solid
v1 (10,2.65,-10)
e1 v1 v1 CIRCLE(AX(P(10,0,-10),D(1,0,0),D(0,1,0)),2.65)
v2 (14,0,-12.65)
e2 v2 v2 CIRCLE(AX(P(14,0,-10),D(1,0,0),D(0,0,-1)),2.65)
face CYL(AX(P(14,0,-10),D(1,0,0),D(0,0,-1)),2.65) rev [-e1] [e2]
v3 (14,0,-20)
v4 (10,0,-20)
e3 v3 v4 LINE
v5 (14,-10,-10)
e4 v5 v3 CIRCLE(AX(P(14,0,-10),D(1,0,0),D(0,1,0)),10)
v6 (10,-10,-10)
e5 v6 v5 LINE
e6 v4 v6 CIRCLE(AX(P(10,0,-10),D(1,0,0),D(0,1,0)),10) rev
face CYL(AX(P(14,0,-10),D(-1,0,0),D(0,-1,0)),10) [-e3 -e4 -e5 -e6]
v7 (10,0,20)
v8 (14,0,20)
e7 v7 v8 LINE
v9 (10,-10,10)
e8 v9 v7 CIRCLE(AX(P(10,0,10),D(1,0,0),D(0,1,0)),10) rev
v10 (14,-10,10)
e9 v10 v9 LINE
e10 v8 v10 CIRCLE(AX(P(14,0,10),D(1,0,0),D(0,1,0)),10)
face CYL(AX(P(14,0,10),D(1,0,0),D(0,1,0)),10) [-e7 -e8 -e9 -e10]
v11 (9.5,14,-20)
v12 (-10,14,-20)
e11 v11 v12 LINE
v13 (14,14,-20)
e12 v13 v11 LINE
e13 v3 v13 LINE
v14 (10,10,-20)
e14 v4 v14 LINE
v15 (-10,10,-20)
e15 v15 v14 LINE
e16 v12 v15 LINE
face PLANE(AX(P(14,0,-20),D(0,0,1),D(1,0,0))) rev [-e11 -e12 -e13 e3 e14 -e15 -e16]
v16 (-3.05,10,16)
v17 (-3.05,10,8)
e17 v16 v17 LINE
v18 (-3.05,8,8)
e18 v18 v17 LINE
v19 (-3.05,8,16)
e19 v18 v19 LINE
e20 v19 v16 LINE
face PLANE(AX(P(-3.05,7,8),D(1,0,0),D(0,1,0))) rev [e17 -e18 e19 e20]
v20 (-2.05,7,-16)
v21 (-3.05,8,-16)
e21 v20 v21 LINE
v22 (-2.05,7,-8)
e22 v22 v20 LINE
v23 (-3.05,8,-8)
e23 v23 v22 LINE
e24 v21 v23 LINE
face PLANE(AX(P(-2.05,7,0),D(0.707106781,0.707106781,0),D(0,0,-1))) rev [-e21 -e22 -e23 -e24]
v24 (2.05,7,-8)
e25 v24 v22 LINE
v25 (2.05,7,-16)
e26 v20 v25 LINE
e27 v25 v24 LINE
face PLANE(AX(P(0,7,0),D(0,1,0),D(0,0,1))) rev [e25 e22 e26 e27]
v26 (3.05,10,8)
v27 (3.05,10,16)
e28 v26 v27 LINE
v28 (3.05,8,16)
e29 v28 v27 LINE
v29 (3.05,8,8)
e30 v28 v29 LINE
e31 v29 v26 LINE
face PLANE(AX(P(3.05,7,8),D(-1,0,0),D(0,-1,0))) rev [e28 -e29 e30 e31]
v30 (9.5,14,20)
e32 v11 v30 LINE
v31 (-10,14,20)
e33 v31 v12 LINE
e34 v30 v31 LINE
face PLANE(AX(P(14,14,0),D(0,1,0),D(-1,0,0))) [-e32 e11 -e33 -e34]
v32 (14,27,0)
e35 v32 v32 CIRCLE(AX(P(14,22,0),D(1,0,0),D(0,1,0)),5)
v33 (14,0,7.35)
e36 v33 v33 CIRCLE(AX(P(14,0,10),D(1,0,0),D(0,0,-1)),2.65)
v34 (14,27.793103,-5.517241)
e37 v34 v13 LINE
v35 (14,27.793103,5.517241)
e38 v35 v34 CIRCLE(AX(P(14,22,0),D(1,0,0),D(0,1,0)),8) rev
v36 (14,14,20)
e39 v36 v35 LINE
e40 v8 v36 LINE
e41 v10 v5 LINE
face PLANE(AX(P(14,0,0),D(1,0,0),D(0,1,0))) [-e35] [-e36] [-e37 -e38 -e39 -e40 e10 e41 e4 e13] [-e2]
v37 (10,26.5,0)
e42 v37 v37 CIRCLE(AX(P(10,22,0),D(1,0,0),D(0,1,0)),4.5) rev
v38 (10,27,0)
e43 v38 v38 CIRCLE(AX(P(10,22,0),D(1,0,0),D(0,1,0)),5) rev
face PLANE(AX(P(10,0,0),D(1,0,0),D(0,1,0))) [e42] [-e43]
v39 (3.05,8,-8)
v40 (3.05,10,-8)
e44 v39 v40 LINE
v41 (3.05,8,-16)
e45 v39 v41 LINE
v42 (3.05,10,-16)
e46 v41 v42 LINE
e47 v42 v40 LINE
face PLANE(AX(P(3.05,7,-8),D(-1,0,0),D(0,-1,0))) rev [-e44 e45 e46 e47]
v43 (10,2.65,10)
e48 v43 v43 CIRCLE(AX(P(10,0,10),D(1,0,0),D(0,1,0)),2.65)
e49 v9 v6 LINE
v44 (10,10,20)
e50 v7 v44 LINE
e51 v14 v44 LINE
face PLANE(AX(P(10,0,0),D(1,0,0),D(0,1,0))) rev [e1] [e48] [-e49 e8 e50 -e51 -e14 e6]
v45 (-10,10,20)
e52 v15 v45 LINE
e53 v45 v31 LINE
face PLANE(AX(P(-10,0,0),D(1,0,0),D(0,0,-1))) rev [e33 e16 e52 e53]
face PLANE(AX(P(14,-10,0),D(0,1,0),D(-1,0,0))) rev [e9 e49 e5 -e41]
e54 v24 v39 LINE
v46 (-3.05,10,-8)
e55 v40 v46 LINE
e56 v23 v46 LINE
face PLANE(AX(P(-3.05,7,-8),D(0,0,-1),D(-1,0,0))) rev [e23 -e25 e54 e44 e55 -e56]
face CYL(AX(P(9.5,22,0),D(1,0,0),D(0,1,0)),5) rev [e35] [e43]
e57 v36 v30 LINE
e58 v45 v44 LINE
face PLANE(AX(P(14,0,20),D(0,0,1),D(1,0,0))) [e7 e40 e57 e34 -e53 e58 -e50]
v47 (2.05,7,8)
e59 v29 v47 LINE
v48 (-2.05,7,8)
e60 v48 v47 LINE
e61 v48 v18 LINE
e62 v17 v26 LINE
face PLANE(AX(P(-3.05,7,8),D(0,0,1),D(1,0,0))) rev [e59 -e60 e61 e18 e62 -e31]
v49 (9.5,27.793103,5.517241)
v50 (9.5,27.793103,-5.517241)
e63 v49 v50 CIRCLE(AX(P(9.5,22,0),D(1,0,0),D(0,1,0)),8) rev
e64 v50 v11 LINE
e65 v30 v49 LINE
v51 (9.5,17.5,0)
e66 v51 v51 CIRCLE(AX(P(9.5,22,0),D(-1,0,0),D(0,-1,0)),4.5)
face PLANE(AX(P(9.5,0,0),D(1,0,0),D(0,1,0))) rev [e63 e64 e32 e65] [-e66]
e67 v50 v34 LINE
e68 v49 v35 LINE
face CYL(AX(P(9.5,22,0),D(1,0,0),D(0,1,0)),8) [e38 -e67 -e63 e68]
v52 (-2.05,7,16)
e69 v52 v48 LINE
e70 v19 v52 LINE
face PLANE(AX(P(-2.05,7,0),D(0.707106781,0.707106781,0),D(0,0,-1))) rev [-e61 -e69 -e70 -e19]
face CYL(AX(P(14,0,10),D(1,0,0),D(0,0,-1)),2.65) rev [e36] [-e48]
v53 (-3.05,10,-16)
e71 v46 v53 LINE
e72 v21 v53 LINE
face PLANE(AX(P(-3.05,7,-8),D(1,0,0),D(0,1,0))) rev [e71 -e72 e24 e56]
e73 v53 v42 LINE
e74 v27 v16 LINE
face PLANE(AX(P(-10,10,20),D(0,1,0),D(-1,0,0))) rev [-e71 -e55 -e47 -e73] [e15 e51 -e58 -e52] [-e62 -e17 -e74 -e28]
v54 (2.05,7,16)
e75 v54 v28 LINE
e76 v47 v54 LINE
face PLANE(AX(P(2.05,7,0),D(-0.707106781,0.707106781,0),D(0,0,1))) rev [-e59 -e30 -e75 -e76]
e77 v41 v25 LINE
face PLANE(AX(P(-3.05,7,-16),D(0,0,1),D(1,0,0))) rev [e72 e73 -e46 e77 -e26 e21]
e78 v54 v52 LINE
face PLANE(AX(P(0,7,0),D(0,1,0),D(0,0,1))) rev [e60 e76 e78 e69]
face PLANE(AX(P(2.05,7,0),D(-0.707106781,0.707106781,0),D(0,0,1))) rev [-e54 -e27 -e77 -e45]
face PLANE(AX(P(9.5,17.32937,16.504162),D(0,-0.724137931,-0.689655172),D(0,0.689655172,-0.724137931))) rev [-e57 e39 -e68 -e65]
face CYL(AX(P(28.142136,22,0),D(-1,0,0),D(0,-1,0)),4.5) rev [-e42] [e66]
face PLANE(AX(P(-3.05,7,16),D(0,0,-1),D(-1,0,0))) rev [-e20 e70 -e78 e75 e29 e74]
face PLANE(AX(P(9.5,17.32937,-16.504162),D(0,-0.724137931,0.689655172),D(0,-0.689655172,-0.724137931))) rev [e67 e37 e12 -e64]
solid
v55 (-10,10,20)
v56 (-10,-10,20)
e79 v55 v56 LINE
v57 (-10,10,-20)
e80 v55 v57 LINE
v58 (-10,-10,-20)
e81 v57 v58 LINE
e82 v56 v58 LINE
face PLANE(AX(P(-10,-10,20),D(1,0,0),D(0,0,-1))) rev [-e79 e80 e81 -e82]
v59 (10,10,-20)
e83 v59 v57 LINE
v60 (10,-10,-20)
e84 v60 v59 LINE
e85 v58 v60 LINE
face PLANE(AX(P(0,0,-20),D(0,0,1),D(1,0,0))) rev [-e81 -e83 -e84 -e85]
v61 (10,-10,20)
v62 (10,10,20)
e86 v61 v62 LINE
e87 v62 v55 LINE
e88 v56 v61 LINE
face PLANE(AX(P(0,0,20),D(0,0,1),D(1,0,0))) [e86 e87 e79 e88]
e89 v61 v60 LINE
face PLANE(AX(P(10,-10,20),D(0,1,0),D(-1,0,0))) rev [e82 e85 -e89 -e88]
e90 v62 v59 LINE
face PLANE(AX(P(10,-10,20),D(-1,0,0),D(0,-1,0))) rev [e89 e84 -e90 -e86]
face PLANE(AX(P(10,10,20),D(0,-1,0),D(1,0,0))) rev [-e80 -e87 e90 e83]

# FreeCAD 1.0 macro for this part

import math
import FreeCAD as App
import Part
import Sketcher
from FreeCAD import Vector
Q = App.Units.Quantity


def edges_at(feature, points):
    """Names of the edges that pass closest to the given points."""
    edges = feature.Shape.Edges
    near = lambda p: min(range(len(edges)), key=lambda i: edges[i].distToShape(Part.Vertex(*p))[0])
    return sorted({f"Edge{near(p) + 1}" for p in points})

doc = App.newDocument("Part")
params = doc.addObject("Spreadsheet::Sheet", "Params")
for row, (alias, value) in enumerate([
    ("sketch1_width", "20 mm"),
    ("pad1_length", "40 mm"),
    ("sketch2_width", "24 mm"),
    ("sketch2_height", "40 mm"),
    ("pad2_length", "4 mm"),
    ("sketch3_width", "24 mm"),
    ("sketch3_height", "2.65 mm"),
    ("groove_angle", "360 deg"),
    ("linearpattern_pitch", "20 mm"),
    ("sketch4_width", "4 mm"),
    ("sketch4_height", "40 mm"),
    ("pad3_length", "20 mm"),
    ("sketch5_height", "8 mm"),
    ("sketch5_width", "6.1 mm"),
    ("pad4_length", "3 mm"),
    ("chamfer_size", "1 mm"),
    ("sketch6_diameter", "10 mm"),
    ("sketch6_radius", "8 mm"),
    ("sketch6_height", "40 mm"),
    ("sketch6_length", "20 mm"),
    ("pad5_length", "4.5 mm"),
    ("sketch7_diameter", "10 mm"),
    ("sketch7_diameter2", "9 mm"),
    ("pad6_length", "0.5 mm"),
    ("fillet_radius", "10 mm"),
], start=1):
    params.set(f"A{row}", alias)
    params.set(f"B{row}", "=" + value)
    params.setAlias(f"B{row}", alias)

body = doc.addObject("PartDesign::Body", "Body")

# Sketch on XY plane
sketch1 = body.newObject("Sketcher::SketchObject", "Sketch")
sketch1.AttachmentSupport = (doc.getObject("XY_Plane"), [""])
sketch1.MapMode = "FlatFace"
sketch1.addGeometry(Part.LineSegment(Vector(-10, 10, 0), Vector(-10, -10, 0)), False)
sketch1.addGeometry(Part.LineSegment(Vector(-10, -10, 0), Vector(10, -10, 0)), False)
sketch1.addGeometry(Part.LineSegment(Vector(10, -10, 0), Vector(10, 10, 0)), False)
sketch1.addGeometry(Part.LineSegment(Vector(10, 10, 0), Vector(-10, 10, 0)), False)
sketch1.addConstraint(Sketcher.Constraint("Coincident", 0, 2, 1, 1))
sketch1.addConstraint(Sketcher.Constraint("Coincident", 1, 2, 2, 1))
sketch1.addConstraint(Sketcher.Constraint("Coincident", 2, 2, 3, 1))
sketch1.addConstraint(Sketcher.Constraint("Coincident", 3, 2, 0, 1))
sketch1.addConstraint(Sketcher.Constraint("Vertical", 0))
sketch1.addConstraint(Sketcher.Constraint("Horizontal", 1))
sketch1.addConstraint(Sketcher.Constraint("Vertical", 2))
sketch1.addConstraint(Sketcher.Constraint("Horizontal", 3))
sketch1.addConstraint(Sketcher.Constraint("Symmetric", 0, 2, 2, 2, -1, 1))
sketch1.addConstraint(Sketcher.Constraint("Equal", 3, 0))
sketch1.addConstraint(Sketcher.Constraint("DistanceX", 1, 1, 1, 2, Q("20 mm")))
sketch1.setExpression("Constraints[10]", "Params.sketch1_width")
pad1 = body.newObject("PartDesign::Pad", "Pad")
pad1.Profile = sketch1
pad1.setExpression("Length", "Params.pad1_length")
pad1.Midplane = True
body2 = doc.addObject("PartDesign::Body", "Body001")

# Sketch on YZ plane
sketch2 = body2.newObject("Sketcher::SketchObject", "Sketch001")
sketch2.AttachmentSupport = (doc.getObject("YZ_Plane001"), [""])
sketch2.MapMode = "FlatFace"
sketch2.AttachmentOffset = App.Placement(Vector(0, 0, 10), App.Rotation())
sketch2.addGeometry(Part.LineSegment(Vector(14, 20, 0), Vector(-10, 20, 0)), False)
sketch2.addGeometry(Part.LineSegment(Vector(-10, 20, 0), Vector(-10, -20, 0)), False)
sketch2.addGeometry(Part.LineSegment(Vector(-10, -20, 0), Vector(14, -20, 0)), False)
sketch2.addGeometry(Part.LineSegment(Vector(14, -20, 0), Vector(14, 20, 0)), False)
sketch2.addConstraint(Sketcher.Constraint("Coincident", 0, 2, 1, 1))
sketch2.addConstraint(Sketcher.Constraint("Coincident", 1, 2, 2, 1))
sketch2.addConstraint(Sketcher.Constraint("Coincident", 2, 2, 3, 1))
sketch2.addConstraint(Sketcher.Constraint("Coincident", 3, 2, 0, 1))
sketch2.addConstraint(Sketcher.Constraint("Horizontal", 0))
sketch2.addConstraint(Sketcher.Constraint("Vertical", 1))
sketch2.addConstraint(Sketcher.Constraint("Horizontal", 2))
sketch2.addConstraint(Sketcher.Constraint("Vertical", 3))
sketch2.addConstraint(Sketcher.Constraint("DistanceX", 0, 2, 0, 1, Q("24 mm")))
sketch2.addConstraint(Sketcher.Constraint("DistanceY", 1, 2, 1, 1, Q("40 mm")))
sketch2.addConstraint(Sketcher.Constraint("DistanceX", 0, 2, -1, 1, Q("10 mm")))
sketch2.addConstraint(Sketcher.Constraint("DistanceY", -1, 1, 0, 2, Q("20 mm")))
sketch2.setExpression("Constraints[8]", "Params.sketch2_width")
sketch2.setExpression("Constraints[9]", "Params.sketch2_height")
pad2 = body2.newObject("PartDesign::Pad", "Pad001")
pad2.Profile = sketch2
pad2.setExpression("Length", "Params.pad2_length")

# Sketch on XZ plane
sketch3 = body2.newObject("Sketcher::SketchObject", "Sketch002")
sketch3.AttachmentSupport = (doc.getObject("XZ_Plane001"), [""])
sketch3.MapMode = "FlatFace"
sketch3.addGeometry(Part.LineSegment(Vector(-10, 10, 0), Vector(14, 10, 0)), False)
sketch3.addGeometry(Part.LineSegment(Vector(14, 10, 0), Vector(14, 7.35, 0)), False)
sketch3.addGeometry(Part.LineSegment(Vector(14, 7.35, 0), Vector(-10, 7.35, 0)), False)
sketch3.addGeometry(Part.LineSegment(Vector(-10, 7.35, 0), Vector(-10, 10, 0)), False)
sketch3.addGeometry(Part.LineSegment(Vector(14, 10, 0), Vector(-10, 10, 0)), True)  # axis
sketch3.addConstraint(Sketcher.Constraint("Coincident", 0, 2, 1, 1))
sketch3.addConstraint(Sketcher.Constraint("Coincident", 1, 2, 2, 1))
sketch3.addConstraint(Sketcher.Constraint("Coincident", 2, 2, 3, 1))
sketch3.addConstraint(Sketcher.Constraint("Coincident", 3, 2, 0, 1))
sketch3.addConstraint(Sketcher.Constraint("Horizontal", 0))
sketch3.addConstraint(Sketcher.Constraint("Vertical", 1))
sketch3.addConstraint(Sketcher.Constraint("Horizontal", 2))
sketch3.addConstraint(Sketcher.Constraint("Vertical", 3))
sketch3.addConstraint(Sketcher.Constraint("Horizontal", 4))
sketch3.addConstraint(Sketcher.Constraint("Coincident", 4, 1, 0, 2))
sketch3.addConstraint(Sketcher.Constraint("Vertical", 2, 2, 4, 2))
sketch3.addConstraint(Sketcher.Constraint("DistanceX", 0, 1, 0, 2, Q("24 mm")))
sketch3.addConstraint(Sketcher.Constraint("DistanceX", -1, 1, 0, 2, Q("14 mm")))
sketch3.addConstraint(Sketcher.Constraint("DistanceY", -1, 1, 0, 2, Q("10 mm")))
sketch3.addConstraint(Sketcher.Constraint("DistanceY", 1, 2, 1, 1, Q("2.65 mm")))
sketch3.setExpression("Constraints[11]", "Params.sketch3_width")
sketch3.setExpression("Constraints[14]", "Params.sketch3_height")
groove = body2.newObject("PartDesign::Groove", "Groove")
groove.Profile = sketch3
groove.ReferenceAxis = (sketch3, ["Axis0"])
groove.setExpression("Angle", "Params.groove_angle")
doc.recompute()

linearpattern = body2.newObject("PartDesign::LinearPattern", "LinearPattern")
linearpattern.Originals = [groove]
linearpattern.Direction = (doc.getObject("Z_Axis001"), [""])
linearpattern.Mode = "offset"
linearpattern.setExpression("Offset", "Params.linearpattern_pitch")
linearpattern.Occurrences = 2
linearpattern.Reversed = True
body2.Tip = linearpattern

# Sketch on YZ plane
sketch4 = body2.newObject("Sketcher::SketchObject", "Sketch003")
sketch4.AttachmentSupport = (doc.getObject("YZ_Plane001"), [""])
sketch4.MapMode = "FlatFace"
sketch4.AttachmentOffset = App.Placement(Vector(0, 0, 10), App.Rotation())
sketch4.addGeometry(Part.LineSegment(Vector(14, -20, 0), Vector(10, -20, 0)), False)
sketch4.addGeometry(Part.LineSegment(Vector(10, -20, 0), Vector(10, 20, 0)), False)
sketch4.addGeometry(Part.LineSegment(Vector(10, 20, 0), Vector(14, 20, 0)), False)
sketch4.addGeometry(Part.LineSegment(Vector(14, 20, 0), Vector(14, -20, 0)), False)
sketch4.addConstraint(Sketcher.Constraint("Coincident", 0, 2, 1, 1))
sketch4.addConstraint(Sketcher.Constraint("Coincident", 1, 2, 2, 1))
sketch4.addConstraint(Sketcher.Constraint("Coincident", 2, 2, 3, 1))
sketch4.addConstraint(Sketcher.Constraint("Coincident", 3, 2, 0, 1))
sketch4.addConstraint(Sketcher.Constraint("Horizontal", 0))
sketch4.addConstraint(Sketcher.Constraint("Vertical", 1))
sketch4.addConstraint(Sketcher.Constraint("Horizontal", 2))
sketch4.addConstraint(Sketcher.Constraint("Vertical", 3))
sketch4.addConstraint(Sketcher.Constraint("DistanceX", 0, 2, 0, 1, Q("4 mm")))
sketch4.addConstraint(Sketcher.Constraint("DistanceY", 1, 1, 1, 2, Q("40 mm")))
sketch4.addConstraint(Sketcher.Constraint("DistanceX", -1, 1, 0, 2, Q("10 mm")))
sketch4.addConstraint(Sketcher.Constraint("DistanceY", 0, 2, -1, 1, Q("20 mm")))
sketch4.setExpression("Constraints[8]", "Params.sketch4_width")
sketch4.setExpression("Constraints[9]", "Params.sketch4_height")
pad3 = body2.newObject("PartDesign::Pad", "Pad002")
pad3.Profile = sketch4
pad3.setExpression("Length", "Params.pad3_length")
pad3.Reversed = True

# Sketch on XZ plane
sketch5 = body2.newObject("Sketcher::SketchObject", "Sketch004")
sketch5.AttachmentSupport = (doc.getObject("XZ_Plane001"), [""])
sketch5.MapMode = "FlatFace"
sketch5.AttachmentOffset = App.Placement(Vector(0, 0, -10), App.Rotation())
sketch5.addGeometry(Part.LineSegment(Vector(-3.05, 16, 0), Vector(-3.05, 8, 0)), False)
sketch5.addGeometry(Part.LineSegment(Vector(-3.05, 8, 0), Vector(3.05, 8, 0)), False)
sketch5.addGeometry(Part.LineSegment(Vector(3.05, 8, 0), Vector(3.05, 16, 0)), False)
sketch5.addGeometry(Part.LineSegment(Vector(3.05, 16, 0), Vector(-3.05, 16, 0)), False)
sketch5.addGeometry(Part.LineSegment(Vector(-3.05, -8, 0), Vector(-3.05, -16, 0)), False)
sketch5.addGeometry(Part.LineSegment(Vector(-3.05, -16, 0), Vector(3.05, -16, 0)), False)
sketch5.addGeometry(Part.LineSegment(Vector(3.05, -16, 0), Vector(3.05, -8, 0)), False)
sketch5.addGeometry(Part.LineSegment(Vector(3.05, -8, 0), Vector(-3.05, -8, 0)), False)
sketch5.addConstraint(Sketcher.Constraint("Coincident", 0, 2, 1, 1))
sketch5.addConstraint(Sketcher.Constraint("Coincident", 1, 2, 2, 1))
sketch5.addConstraint(Sketcher.Constraint("Coincident", 2, 2, 3, 1))
sketch5.addConstraint(Sketcher.Constraint("Coincident", 3, 2, 0, 1))
sketch5.addConstraint(Sketcher.Constraint("Coincident", 4, 2, 5, 1))
sketch5.addConstraint(Sketcher.Constraint("Coincident", 5, 2, 6, 1))
sketch5.addConstraint(Sketcher.Constraint("Coincident", 6, 2, 7, 1))
sketch5.addConstraint(Sketcher.Constraint("Coincident", 7, 2, 4, 1))
sketch5.addConstraint(Sketcher.Constraint("Vertical", 0))
sketch5.addConstraint(Sketcher.Constraint("Horizontal", 1))
sketch5.addConstraint(Sketcher.Constraint("Vertical", 2))
sketch5.addConstraint(Sketcher.Constraint("Horizontal", 3))
sketch5.addConstraint(Sketcher.Constraint("Vertical", 4))
sketch5.addConstraint(Sketcher.Constraint("Horizontal", 5))
sketch5.addConstraint(Sketcher.Constraint("Vertical", 6))
sketch5.addConstraint(Sketcher.Constraint("Horizontal", 7))
sketch5.addConstraint(Sketcher.Constraint("Symmetric", 2, 2, 4, 2, -1, 1))
sketch5.addConstraint(Sketcher.Constraint("Symmetric", 0, 2, 6, 2, -1, 1))
sketch5.addConstraint(Sketcher.Constraint("Vertical", 3, 2, 4, 2))
sketch5.addConstraint(Sketcher.Constraint("DistanceY", 0, 2, 0, 1, Q("8 mm")))
sketch5.addConstraint(Sketcher.Constraint("DistanceX", 1, 1, 1, 2, Q("6.1 mm")))
sketch5.addConstraint(Sketcher.Constraint("DistanceY", -1, 1, 0, 2, Q("8 mm")))
sketch5.setExpression("Constraints[19]", "Params.sketch5_height")
sketch5.setExpression("Constraints[20]", "Params.sketch5_width")
pad4 = body2.newObject("PartDesign::Pad", "Pad003")
pad4.Profile = sketch5
pad4.setExpression("Length", "Params.pad4_length")
doc.recompute()

chamfer = body2.newObject("PartDesign::Chamfer", "Chamfer")
chamfer.Base = (pad4, edges_at(pad4, [
    (-3.05, 7, 12),
    (3.05, 7, 12),
    (-3.05, 7, -12),
    (3.05, 7, -12),
]))
chamfer.setExpression("Size", "Params.chamfer_size")

# Sketch on YZ plane
sketch6 = body2.newObject("Sketcher::SketchObject", "Sketch005")
sketch6.AttachmentSupport = (doc.getObject("YZ_Plane001"), [""])
sketch6.MapMode = "FlatFace"
sketch6.AttachmentOffset = App.Placement(Vector(0, 0, 14), App.Rotation())
sketch6.addGeometry(Part.ArcOfCircle(Part.Circle(Vector(22, 0, 0), Vector(0, 0, 1), 8), math.radians(-43.602819), math.radians(43.602819)), False)
sketch6.addGeometry(Part.LineSegment(Vector(27.793103, 5.517241, 0), Vector(14, 20, 0)), False)
sketch6.addGeometry(Part.LineSegment(Vector(14, 20, 0), Vector(14, -20, 0)), False)
sketch6.addGeometry(Part.LineSegment(Vector(14, -20, 0), Vector(27.793103, -5.517241, 0)), False)
sketch6.addGeometry(Part.Circle(Vector(22, 0, 0), Vector(0, 0, 1), 5), False)
sketch6.addConstraint(Sketcher.Constraint("Tangent", 0, 2, 1, 1))
sketch6.addConstraint(Sketcher.Constraint("Coincident", 1, 2, 2, 1))
sketch6.addConstraint(Sketcher.Constraint("Coincident", 2, 2, 3, 1))
sketch6.addConstraint(Sketcher.Constraint("Tangent", 3, 2, 0, 1))
sketch6.addConstraint(Sketcher.Constraint("Vertical", 2))
sketch6.addConstraint(Sketcher.Constraint("Coincident", 4, 3, 0, 3))
sketch6.addConstraint(Sketcher.Constraint("Symmetric", 0, 2, 3, 2, -1))
sketch6.addConstraint(Sketcher.Constraint("Diameter", 4, Q("10 mm")))
sketch6.addConstraint(Sketcher.Constraint("Radius", 0, Q("8 mm")))
sketch6.addConstraint(Sketcher.Constraint("DistanceY", 2, 2, 2, 1, Q("40 mm")))
sketch6.addConstraint(Sketcher.Constraint("Distance", 1, Q("20 mm")))
sketch6.addConstraint(Sketcher.Constraint("DistanceX", -1, 1, 0, 3, Q("22 mm")))
sketch6.setExpression("Constraints[7]", "Params.sketch6_diameter")
sketch6.setExpression("Constraints[8]", "Params.sketch6_radius")
sketch6.setExpression("Constraints[9]", "Params.sketch6_height")
sketch6.setExpression("Constraints[10]", "Params.sketch6_length")
pad5 = body2.newObject("PartDesign::Pad", "Pad004")
pad5.Profile = sketch6
pad5.setExpression("Length", "Params.pad5_length")
pad5.Reversed = True

# Sketch on YZ plane
sketch7 = body2.newObject("Sketcher::SketchObject", "Sketch006")
sketch7.AttachmentSupport = (doc.getObject("YZ_Plane001"), [""])
sketch7.MapMode = "FlatFace"
sketch7.AttachmentOffset = App.Placement(Vector(0, 0, 9.5), App.Rotation())
sketch7.addGeometry(Part.Circle(Vector(22, 0, 0), Vector(0, 0, 1), 5), False)
sketch7.addGeometry(Part.Circle(Vector(22, 0, 0), Vector(0, 0, 1), 4.5), False)
sketch7.addConstraint(Sketcher.Constraint("Coincident", 1, 3, 0, 3))
sketch7.addConstraint(Sketcher.Constraint("PointOnObject", 0, 3, -1))
sketch7.addConstraint(Sketcher.Constraint("Diameter", 0, Q("10 mm")))
sketch7.addConstraint(Sketcher.Constraint("Diameter", 1, Q("9 mm")))
sketch7.addConstraint(Sketcher.Constraint("DistanceX", -1, 1, 0, 3, Q("22 mm")))
sketch7.setExpression("Constraints[2]", "Params.sketch7_diameter")
sketch7.setExpression("Constraints[3]", "Params.sketch7_diameter2")
pad6 = body2.newObject("PartDesign::Pad", "Pad005")
pad6.Profile = sketch7
pad6.setExpression("Length", "Params.pad6_length")
doc.recompute()

fillet = body2.newObject("PartDesign::Fillet", "Fillet")
fillet.Base = (pad6, edges_at(pad6, [(12, -10, -20), (12, -10, 20)]))
fillet.setExpression("Radius", "Params.fillet_radius")

doc.recompute()
